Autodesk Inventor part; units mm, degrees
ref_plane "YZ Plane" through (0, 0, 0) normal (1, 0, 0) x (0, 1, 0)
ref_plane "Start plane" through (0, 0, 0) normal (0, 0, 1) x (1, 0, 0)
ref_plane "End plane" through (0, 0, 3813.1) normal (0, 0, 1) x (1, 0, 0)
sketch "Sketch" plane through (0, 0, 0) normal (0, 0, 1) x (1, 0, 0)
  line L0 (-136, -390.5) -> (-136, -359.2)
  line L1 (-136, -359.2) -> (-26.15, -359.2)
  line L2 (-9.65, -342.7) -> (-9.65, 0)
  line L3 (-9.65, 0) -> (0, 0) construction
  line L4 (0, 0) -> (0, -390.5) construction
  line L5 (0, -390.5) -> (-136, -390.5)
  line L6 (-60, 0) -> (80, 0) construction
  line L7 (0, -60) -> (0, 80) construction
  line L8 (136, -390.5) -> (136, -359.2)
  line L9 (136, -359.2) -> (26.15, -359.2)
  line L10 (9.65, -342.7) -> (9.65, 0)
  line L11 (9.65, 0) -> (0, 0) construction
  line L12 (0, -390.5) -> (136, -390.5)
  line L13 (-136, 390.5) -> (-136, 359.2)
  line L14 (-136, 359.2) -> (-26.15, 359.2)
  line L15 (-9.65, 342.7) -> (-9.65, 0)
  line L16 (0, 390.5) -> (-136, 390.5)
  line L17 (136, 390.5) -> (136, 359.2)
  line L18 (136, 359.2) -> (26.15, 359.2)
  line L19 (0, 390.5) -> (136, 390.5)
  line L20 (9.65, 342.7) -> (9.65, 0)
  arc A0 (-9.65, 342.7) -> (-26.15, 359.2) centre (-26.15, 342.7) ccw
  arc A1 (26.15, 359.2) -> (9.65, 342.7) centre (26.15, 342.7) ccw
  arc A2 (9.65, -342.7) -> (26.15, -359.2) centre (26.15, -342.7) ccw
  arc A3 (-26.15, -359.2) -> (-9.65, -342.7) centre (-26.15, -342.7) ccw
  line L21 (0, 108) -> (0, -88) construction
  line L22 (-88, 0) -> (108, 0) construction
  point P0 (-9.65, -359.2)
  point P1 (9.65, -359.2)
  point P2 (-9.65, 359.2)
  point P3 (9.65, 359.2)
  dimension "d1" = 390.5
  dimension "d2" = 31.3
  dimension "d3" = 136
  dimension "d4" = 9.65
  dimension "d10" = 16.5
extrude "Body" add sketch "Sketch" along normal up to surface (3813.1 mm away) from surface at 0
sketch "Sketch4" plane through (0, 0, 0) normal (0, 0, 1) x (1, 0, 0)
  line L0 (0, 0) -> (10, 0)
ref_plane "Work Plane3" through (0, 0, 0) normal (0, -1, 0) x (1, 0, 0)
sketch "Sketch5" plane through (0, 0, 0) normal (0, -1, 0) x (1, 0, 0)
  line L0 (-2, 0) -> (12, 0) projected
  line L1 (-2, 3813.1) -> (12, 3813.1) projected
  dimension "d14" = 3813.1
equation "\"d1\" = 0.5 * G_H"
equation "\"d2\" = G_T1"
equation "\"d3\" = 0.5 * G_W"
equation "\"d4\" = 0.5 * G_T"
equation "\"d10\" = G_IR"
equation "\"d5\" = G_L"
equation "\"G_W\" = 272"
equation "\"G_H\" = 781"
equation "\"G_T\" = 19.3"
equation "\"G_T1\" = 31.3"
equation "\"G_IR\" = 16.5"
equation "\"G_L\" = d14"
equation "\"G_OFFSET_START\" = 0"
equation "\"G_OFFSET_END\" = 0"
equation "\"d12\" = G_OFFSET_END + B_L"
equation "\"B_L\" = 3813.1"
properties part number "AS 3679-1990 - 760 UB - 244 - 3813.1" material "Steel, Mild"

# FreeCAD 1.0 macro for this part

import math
import FreeCAD as App
import Part
import Sketcher

V = App.Vector
Q = App.Units.Quantity

doc = App.newDocument("Part")
body = doc.addObject("PartDesign::Body", "Body")

# Sketch on XY plane
sketch1 = body.newObject("Sketcher::SketchObject", "Sketch")
sketch1.AttachmentSupport = (doc.getObject("XY_Plane"), [""])
sketch1.MapMode = "FlatFace"
sketch1.addGeometry(Part.LineSegment(V(-136, -359, 0), V(-136, -390, 0)), False)
sketch1.addGeometry(Part.LineSegment(V(-136, -390, 0), V(136, -390, 0)), False)
sketch1.addGeometry(Part.LineSegment(V(136, -390, 0), V(136, -359, 0)), False)
sketch1.addGeometry(Part.LineSegment(V(136, -359, 0), V(26, -359, 0)), False)
sketch1.addGeometry(Part.ArcOfCircle(Part.Circle(V(26, -343, 0), V(0, 0, 1), 16), math.radians(180), math.radians(270)), False)
sketch1.addGeometry(Part.LineSegment(V(10, -343, 0), V(10, 343, 0)), False)
sketch1.addGeometry(Part.ArcOfCircle(Part.Circle(V(26, 343, 0), V(0, 0, 1), 16), math.radians(90), math.radians(180)), False)
sketch1.addGeometry(Part.LineSegment(V(26, 359, 0), V(136, 359, 0)), False)
sketch1.addGeometry(Part.LineSegment(V(136, 359, 0), V(136, 390, 0)), False)
sketch1.addGeometry(Part.LineSegment(V(136, 390, 0), V(-136, 390, 0)), False)
sketch1.addGeometry(Part.LineSegment(V(-136, 390, 0), V(-136, 359, 0)), False)
sketch1.addGeometry(Part.LineSegment(V(-136, 359, 0), V(-26, 359, 0)), False)
sketch1.addGeometry(Part.ArcOfCircle(Part.Circle(V(-26, 343, 0), V(0, 0, 1), 16), math.radians(0), math.radians(90)), False)
sketch1.addGeometry(Part.LineSegment(V(-10, 343, 0), V(-10, -343, 0)), False)
sketch1.addGeometry(Part.ArcOfCircle(Part.Circle(V(-26, -343, 0), V(0, 0, 1), 16), math.radians(-90), math.radians(0)), False)
sketch1.addGeometry(Part.LineSegment(V(-26, -359, 0), V(-136, -359, 0)), False)
sketch1.addConstraint(Sketcher.Constraint("Coincident", 0, 2, 1, 1))
sketch1.addConstraint(Sketcher.Constraint("Coincident", 1, 2, 2, 1))
sketch1.addConstraint(Sketcher.Constraint("Coincident", 2, 2, 3, 1))
sketch1.addConstraint(Sketcher.Constraint("Tangent", 3, 2, 4, 2))
sketch1.addConstraint(Sketcher.Constraint("Tangent", 4, 1, 5, 1))
sketch1.addConstraint(Sketcher.Constraint("Tangent", 5, 2, 6, 2))
sketch1.addConstraint(Sketcher.Constraint("Tangent", 6, 1, 7, 1))
sketch1.addConstraint(Sketcher.Constraint("Coincident", 7, 2, 8, 1))
sketch1.addConstraint(Sketcher.Constraint("Coincident", 8, 2, 9, 1))
sketch1.addConstraint(Sketcher.Constraint("Coincident", 9, 2, 10, 1))
sketch1.addConstraint(Sketcher.Constraint("Coincident", 10, 2, 11, 1))
sketch1.addConstraint(Sketcher.Constraint("Tangent", 11, 2, 12, 2))
sketch1.addConstraint(Sketcher.Constraint("Tangent", 12, 1, 13, 1))
sketch1.addConstraint(Sketcher.Constraint("Tangent", 13, 2, 14, 2))
sketch1.addConstraint(Sketcher.Constraint("Tangent", 14, 1, 15, 1))
sketch1.addConstraint(Sketcher.Constraint("Coincident", 15, 2, 0, 1))
sketch1.addConstraint(Sketcher.Constraint("Vertical", 0))
sketch1.addConstraint(Sketcher.Constraint("Horizontal", 1))
sketch1.addConstraint(Sketcher.Constraint("Vertical", 2))
sketch1.addConstraint(Sketcher.Constraint("Horizontal", 3))
sketch1.addConstraint(Sketcher.Constraint("Vertical", 5))
sketch1.addConstraint(Sketcher.Constraint("Horizontal", 7))
sketch1.addConstraint(Sketcher.Constraint("Vertical", 8))
sketch1.addConstraint(Sketcher.Constraint("Horizontal", 9))
sketch1.addConstraint(Sketcher.Constraint("Vertical", 10))
sketch1.addConstraint(Sketcher.Constraint("Horizontal", 11))
sketch1.addConstraint(Sketcher.Constraint("Vertical", 13))
sketch1.addConstraint(Sketcher.Constraint("Horizontal", 15))
sketch1.addConstraint(Sketcher.Constraint("Equal", 4, 6))
sketch1.addConstraint(Sketcher.Constraint("Equal", 6, 12))
sketch1.addConstraint(Sketcher.Constraint("Equal", 12, 14))
sketch1.addConstraint(Sketcher.Constraint("Symmetric", 4, 3, 12, 3, -1, 1))
sketch1.addConstraint(Sketcher.Constraint("Symmetric", 0, 2, 8, 2, -1, 1))
sketch1.addConstraint(Sketcher.Constraint("Symmetric", 7, 2, 10, 2, -2))
sketch1.addConstraint(Sketcher.Constraint("Symmetric", 2, 2, 15, 2, -2))
sketch1.addConstraint(Sketcher.Constraint("Radius", 4, Q("16.5 mm")))
sketch1.addConstraint(Sketcher.Constraint("DistanceY", 0, 2, 0, 1, Q("31.3 mm")))
sketch1.addConstraint(Sketcher.Constraint("DistanceX", 0, 2, -1, 1, Q("136 mm")))
sketch1.addConstraint(Sketcher.Constraint("DistanceY", 0, 2, -1, 1, Q("390.5 mm")))
sketch1.addConstraint(Sketcher.Constraint("DistanceX", -1, 1, 4, 1, Q("9.65 mm")))
pad1 = body.newObject("PartDesign::Pad", "Pad")
pad1.Profile = sketch1
pad1.Length = 3813.1

doc.recompute()
